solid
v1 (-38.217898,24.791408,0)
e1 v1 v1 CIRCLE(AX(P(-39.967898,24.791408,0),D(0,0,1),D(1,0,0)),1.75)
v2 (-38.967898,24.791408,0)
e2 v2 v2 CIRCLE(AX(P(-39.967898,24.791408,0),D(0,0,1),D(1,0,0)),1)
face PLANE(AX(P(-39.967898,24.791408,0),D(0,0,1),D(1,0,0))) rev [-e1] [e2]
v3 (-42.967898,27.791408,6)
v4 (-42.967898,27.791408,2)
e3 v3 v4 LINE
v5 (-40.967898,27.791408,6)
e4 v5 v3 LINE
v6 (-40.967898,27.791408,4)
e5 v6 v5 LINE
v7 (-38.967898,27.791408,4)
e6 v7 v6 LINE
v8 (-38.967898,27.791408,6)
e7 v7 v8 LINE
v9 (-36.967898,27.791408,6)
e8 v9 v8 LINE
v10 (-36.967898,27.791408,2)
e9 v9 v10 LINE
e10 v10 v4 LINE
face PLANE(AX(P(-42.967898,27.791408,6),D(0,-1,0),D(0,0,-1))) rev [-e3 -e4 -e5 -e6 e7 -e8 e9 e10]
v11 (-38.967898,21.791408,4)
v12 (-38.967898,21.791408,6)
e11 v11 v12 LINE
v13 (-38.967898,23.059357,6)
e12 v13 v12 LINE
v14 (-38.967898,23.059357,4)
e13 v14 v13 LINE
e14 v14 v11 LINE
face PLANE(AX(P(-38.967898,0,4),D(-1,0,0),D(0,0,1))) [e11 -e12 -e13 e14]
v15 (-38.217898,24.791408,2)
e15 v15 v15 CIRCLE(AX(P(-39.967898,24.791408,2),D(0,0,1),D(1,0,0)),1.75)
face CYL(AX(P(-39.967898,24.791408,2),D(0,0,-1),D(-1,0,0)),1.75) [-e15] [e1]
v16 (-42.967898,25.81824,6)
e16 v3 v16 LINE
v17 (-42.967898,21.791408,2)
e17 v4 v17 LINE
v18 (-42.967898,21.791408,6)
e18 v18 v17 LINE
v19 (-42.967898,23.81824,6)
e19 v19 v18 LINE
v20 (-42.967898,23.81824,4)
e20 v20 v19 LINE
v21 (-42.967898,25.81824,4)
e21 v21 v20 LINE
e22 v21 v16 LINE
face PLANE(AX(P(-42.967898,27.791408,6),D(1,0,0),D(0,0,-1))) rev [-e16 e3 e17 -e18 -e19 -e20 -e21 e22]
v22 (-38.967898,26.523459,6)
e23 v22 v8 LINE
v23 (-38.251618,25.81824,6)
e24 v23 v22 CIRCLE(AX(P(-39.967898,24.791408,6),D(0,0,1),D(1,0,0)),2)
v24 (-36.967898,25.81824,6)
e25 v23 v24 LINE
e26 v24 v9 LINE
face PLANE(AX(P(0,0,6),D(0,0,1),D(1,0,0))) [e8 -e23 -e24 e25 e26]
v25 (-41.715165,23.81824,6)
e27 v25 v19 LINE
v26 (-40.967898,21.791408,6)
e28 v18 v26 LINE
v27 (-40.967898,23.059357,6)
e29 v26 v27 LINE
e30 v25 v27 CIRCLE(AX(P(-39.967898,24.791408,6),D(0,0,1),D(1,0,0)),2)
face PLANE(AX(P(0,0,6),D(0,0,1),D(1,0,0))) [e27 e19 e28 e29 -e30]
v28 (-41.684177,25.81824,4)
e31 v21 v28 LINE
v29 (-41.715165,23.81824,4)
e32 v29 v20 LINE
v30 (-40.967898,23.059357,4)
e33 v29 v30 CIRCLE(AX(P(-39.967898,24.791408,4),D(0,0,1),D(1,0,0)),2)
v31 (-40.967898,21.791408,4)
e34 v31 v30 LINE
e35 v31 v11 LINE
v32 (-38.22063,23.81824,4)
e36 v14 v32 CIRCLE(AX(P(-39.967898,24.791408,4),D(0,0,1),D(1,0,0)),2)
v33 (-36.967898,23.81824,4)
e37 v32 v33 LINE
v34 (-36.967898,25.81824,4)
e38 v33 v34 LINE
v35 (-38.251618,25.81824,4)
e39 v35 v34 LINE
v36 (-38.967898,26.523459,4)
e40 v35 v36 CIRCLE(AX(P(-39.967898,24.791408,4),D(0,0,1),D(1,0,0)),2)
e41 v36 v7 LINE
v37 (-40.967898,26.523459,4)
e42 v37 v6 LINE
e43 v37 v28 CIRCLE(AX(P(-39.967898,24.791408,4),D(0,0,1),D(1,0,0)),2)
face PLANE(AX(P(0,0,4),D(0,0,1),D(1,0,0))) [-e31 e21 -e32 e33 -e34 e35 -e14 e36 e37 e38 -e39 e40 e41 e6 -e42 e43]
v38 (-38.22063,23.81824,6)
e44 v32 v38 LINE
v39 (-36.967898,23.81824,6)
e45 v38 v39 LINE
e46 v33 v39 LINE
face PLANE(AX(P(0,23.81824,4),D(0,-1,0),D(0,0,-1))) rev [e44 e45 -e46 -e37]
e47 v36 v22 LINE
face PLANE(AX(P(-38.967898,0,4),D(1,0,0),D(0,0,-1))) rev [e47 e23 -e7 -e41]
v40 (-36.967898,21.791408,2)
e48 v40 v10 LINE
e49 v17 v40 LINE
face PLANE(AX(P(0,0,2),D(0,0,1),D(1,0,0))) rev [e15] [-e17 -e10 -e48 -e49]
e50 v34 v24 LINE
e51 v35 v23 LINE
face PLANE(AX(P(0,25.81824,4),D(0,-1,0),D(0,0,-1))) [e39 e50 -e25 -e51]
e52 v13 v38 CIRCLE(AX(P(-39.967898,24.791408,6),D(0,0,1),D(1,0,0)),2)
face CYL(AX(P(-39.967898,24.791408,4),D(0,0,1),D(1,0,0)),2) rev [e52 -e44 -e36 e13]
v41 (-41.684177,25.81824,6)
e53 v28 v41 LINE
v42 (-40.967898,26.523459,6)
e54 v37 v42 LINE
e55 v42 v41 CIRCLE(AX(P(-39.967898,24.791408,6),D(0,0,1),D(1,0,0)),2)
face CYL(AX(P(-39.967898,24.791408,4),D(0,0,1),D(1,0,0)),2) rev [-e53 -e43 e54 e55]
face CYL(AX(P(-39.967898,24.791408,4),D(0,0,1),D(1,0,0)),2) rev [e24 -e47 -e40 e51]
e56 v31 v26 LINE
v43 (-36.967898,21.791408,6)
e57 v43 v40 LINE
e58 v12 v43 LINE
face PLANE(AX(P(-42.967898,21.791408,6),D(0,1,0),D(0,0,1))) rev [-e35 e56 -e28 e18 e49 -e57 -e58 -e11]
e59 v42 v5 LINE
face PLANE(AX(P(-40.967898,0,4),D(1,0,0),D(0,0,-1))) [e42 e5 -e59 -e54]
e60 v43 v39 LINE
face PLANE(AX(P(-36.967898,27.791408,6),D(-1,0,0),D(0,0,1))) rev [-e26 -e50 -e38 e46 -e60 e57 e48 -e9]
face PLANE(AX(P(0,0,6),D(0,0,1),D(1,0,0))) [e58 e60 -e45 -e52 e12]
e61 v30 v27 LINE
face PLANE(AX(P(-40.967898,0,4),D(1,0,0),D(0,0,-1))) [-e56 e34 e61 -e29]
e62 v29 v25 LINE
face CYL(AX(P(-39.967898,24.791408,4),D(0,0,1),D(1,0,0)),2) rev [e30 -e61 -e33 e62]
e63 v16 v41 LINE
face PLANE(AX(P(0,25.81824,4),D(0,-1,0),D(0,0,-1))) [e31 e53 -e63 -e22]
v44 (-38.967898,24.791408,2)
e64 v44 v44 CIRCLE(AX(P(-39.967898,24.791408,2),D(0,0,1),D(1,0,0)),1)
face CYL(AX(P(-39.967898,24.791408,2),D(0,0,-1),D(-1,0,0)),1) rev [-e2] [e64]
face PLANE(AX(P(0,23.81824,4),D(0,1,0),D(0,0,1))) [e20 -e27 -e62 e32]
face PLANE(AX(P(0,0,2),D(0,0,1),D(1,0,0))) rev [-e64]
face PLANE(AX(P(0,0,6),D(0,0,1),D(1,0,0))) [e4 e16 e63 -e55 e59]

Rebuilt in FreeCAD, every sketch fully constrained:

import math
import FreeCAD as App
import Part
import Sketcher
Q = App.Units.Quantity

doc = App.newDocument("Part")
body = doc.addObject("PartDesign::Body", "Body")

sketch1 = body.newObject("Sketcher::SketchObject", "Sketch")
sketch1.AttachmentSupport = (doc.getObject("XY_Plane"), [""])
sketch1.MapMode = "FlatFace"
sketch1.addGeometry([
    Part.Circle(App.Vector(-40, 24.8, 0), App.Vector(0, 0, 1), 1.8),
    Part.Circle(App.Vector(-40, 24.8, 0), App.Vector(0, 0, 1), 1),
], False)
sketch1.addConstraint([
    Sketcher.Constraint("Coincident", 1, 3, 0, 3),
    Sketcher.Constraint("Diameter", 1, Q("2 mm")),
    Sketcher.Constraint("Diameter", 0, Q("3.5 mm")),
    Sketcher.Constraint("DistanceY", -1, 1, 0, 3, Q("24.791408 mm")),
    Sketcher.Constraint("DistanceX", 0, 3, -1, 1, Q("39.967898 mm")),
])
pad1 = body.newObject("PartDesign::Pad", "Pad")
pad1.Profile = sketch1
pad1.Length = 2

sketch2 = body.newObject("Sketcher::SketchObject", "Sketch001")
sketch2.AttachmentSupport = (doc.getObject("XY_Plane"), [""])
sketch2.MapMode = "FlatFace"
sketch2.AttachmentOffset = App.Placement(App.Vector(0, 0, 2), App.Rotation())
sketch2.addGeometry([
    Part.LineSegment(App.Vector(-43, 28, 0), App.Vector(-43, 22, 0)),
    Part.LineSegment(App.Vector(-43, 22, 0), App.Vector(-37, 22, 0)),
    Part.LineSegment(App.Vector(-37, 22, 0), App.Vector(-37, 28, 0)),
    Part.LineSegment(App.Vector(-37, 28, 0), App.Vector(-43, 28, 0)),
], False)
sketch2.addConstraint([
    Sketcher.Constraint("Coincident", 0, 2, 1, 1),
    Sketcher.Constraint("Coincident", 1, 2, 2, 1),
    Sketcher.Constraint("Coincident", 2, 2, 3, 1),
    Sketcher.Constraint("Coincident", 3, 2, 0, 1),
    Sketcher.Constraint("Vertical", 0),
    Sketcher.Constraint("Horizontal", 1),
    Sketcher.Constraint("Vertical", 2),
    Sketcher.Constraint("Horizontal", 3),
    Sketcher.Constraint("Equal", 3, 0),
    Sketcher.Constraint("DistanceX", 1, 1, 1, 2, Q("6 mm")),
    Sketcher.Constraint("DistanceY", -1, 1, 0, 2, Q("21.791408 mm")),
    Sketcher.Constraint("DistanceX", 0, 2, -1, 1, Q("42.967898 mm")),
])
pad2 = body.newObject("PartDesign::Pad", "Pad001")
pad2.Profile = sketch2
pad2.Length = 4

sketch3 = body.newObject("Sketcher::SketchObject", "Sketch002")
sketch3.AttachmentSupport = (doc.getObject("XY_Plane"), [""])
sketch3.MapMode = "FlatFace"
sketch3.AttachmentOffset = App.Placement(App.Vector(0, 0, 6), App.Rotation())
sketch3.addGeometry([
    Part.LineSegment(App.Vector(-37, 25.8, 0), App.Vector(-38.3, 25.8, 0)),
    Part.ArcOfCircle(Part.Circle(App.Vector(-40, 24.8, 0), App.Vector(0, 0, 1), 2), math.radians(31), math.radians(60)),
    Part.LineSegment(App.Vector(-39, 26.5, 0), App.Vector(-39, 27.8, 0)),
    Part.LineSegment(App.Vector(-39, 27.8, 0), App.Vector(-41, 27.8, 0)),
    Part.LineSegment(App.Vector(-41, 27.8, 0), App.Vector(-41, 26.5, 0)),
    Part.ArcOfCircle(Part.Circle(App.Vector(-40, 24.8, 0), App.Vector(0, 0, 1), 2), math.radians(120), math.radians(149)),
    Part.LineSegment(App.Vector(-41.7, 25.8, 0), App.Vector(-43, 25.8, 0)),
    Part.LineSegment(App.Vector(-43, 25.8, 0), App.Vector(-43, 23.8, 0)),
    Part.LineSegment(App.Vector(-43, 23.8, 0), App.Vector(-41.7, 23.8, 0)),
    Part.ArcOfCircle(Part.Circle(App.Vector(-40, 24.8, 0), App.Vector(0, 0, 1), 2), math.radians(-151), math.radians(-120)),
    Part.LineSegment(App.Vector(-41, 23.1, 0), App.Vector(-41, 21.8, 0)),
    Part.LineSegment(App.Vector(-41, 21.8, 0), App.Vector(-39, 21.8, 0)),
    Part.LineSegment(App.Vector(-39, 21.8, 0), App.Vector(-39, 23.1, 0)),
    Part.ArcOfCircle(Part.Circle(App.Vector(-40, 24.8, 0), App.Vector(0, 0, 1), 2), math.radians(-60), math.radians(-29)),
    Part.LineSegment(App.Vector(-38.2, 23.8, 0), App.Vector(-37, 23.8, 0)),
    Part.LineSegment(App.Vector(-37, 23.8, 0), App.Vector(-37, 25.8, 0)),
], False)
sketch3.addConstraint([
    Sketcher.Constraint("Coincident", 0, 2, 1, 1),
    Sketcher.Constraint("Coincident", 1, 2, 2, 1),
    Sketcher.Constraint("Coincident", 2, 2, 3, 1),
    Sketcher.Constraint("Coincident", 3, 2, 4, 1),
    Sketcher.Constraint("Coincident", 4, 2, 5, 1),
    Sketcher.Constraint("Coincident", 5, 2, 6, 1),
    Sketcher.Constraint("Coincident", 6, 2, 7, 1),
    Sketcher.Constraint("Coincident", 7, 2, 8, 1),
    Sketcher.Constraint("Coincident", 8, 2, 9, 1),
    Sketcher.Constraint("Coincident", 9, 2, 10, 1),
    Sketcher.Constraint("Coincident", 10, 2, 11, 1),
    Sketcher.Constraint("Coincident", 11, 2, 12, 1),
    Sketcher.Constraint("Coincident", 12, 2, 13, 1),
    Sketcher.Constraint("Coincident", 13, 2, 14, 1),
    Sketcher.Constraint("Coincident", 14, 2, 15, 1),
    Sketcher.Constraint("Coincident", 15, 2, 0, 1),
    Sketcher.Constraint("Horizontal", 0),
    Sketcher.Constraint("Vertical", 2),
    Sketcher.Constraint("Horizontal", 3),
    Sketcher.Constraint("Vertical", 4),
    Sketcher.Constraint("Horizontal", 6),
    Sketcher.Constraint("Vertical", 7),
    Sketcher.Constraint("Horizontal", 8),
    Sketcher.Constraint("Vertical", 10),
    Sketcher.Constraint("Horizontal", 11),
    Sketcher.Constraint("Vertical", 12),
    Sketcher.Constraint("Horizontal", 14),
    Sketcher.Constraint("Vertical", 15),
    Sketcher.Constraint("Coincident", 5, 3, 1, 3),
    Sketcher.Constraint("Coincident", 9, 3, 1, 3),
    Sketcher.Constraint("Coincident", 13, 3, 1, 3),
    Sketcher.Constraint("Equal", 1, 5),
    Sketcher.Constraint("Equal", 5, 9),
    Sketcher.Constraint("Equal", 9, 13),
    Sketcher.Constraint("Horizontal", 1, 2, 4, 2),
    Sketcher.Constraint("Horizontal", 0, 2, 5, 2),
    Sketcher.Constraint("Horizontal", 9, 2, 12, 2),
    Sketcher.Constraint("Horizontal", 8, 2, 13, 2),
    Sketcher.Constraint("Vertical", 4, 2, 9, 2),
    Sketcher.Constraint("Equal", 0, 6),
    Sketcher.Constraint("Equal", 11, 7),
    Sketcher.Constraint("Equal", 4, 10),
    Sketcher.Constraint("Radius", 1, Q("2 mm")),
    Sketcher.Constraint("DistanceX", 3, 2, 3, 1, Q("2 mm")),
    Sketcher.Constraint("DistanceY", 1, 3, 2, 2, Q("3 mm")),
    Sketcher.Constraint("DistanceX", 6, 2, 4, 2, Q("2 mm")),
    Sketcher.Constraint("DistanceX", 0, 2, 0, 1, Q("1.283721 mm")),
    Sketcher.Constraint("DistanceY", -1, 1, 1, 3, Q("24.791408 mm")),
    Sketcher.Constraint("DistanceX", 0, 2, -1, 1, Q("38.251618 mm")),
])
pocket1 = body.newObject("PartDesign::Pocket", "Pocket")
pocket1.Profile = sketch3
pocket1.Length = 2

doc.recompute()
